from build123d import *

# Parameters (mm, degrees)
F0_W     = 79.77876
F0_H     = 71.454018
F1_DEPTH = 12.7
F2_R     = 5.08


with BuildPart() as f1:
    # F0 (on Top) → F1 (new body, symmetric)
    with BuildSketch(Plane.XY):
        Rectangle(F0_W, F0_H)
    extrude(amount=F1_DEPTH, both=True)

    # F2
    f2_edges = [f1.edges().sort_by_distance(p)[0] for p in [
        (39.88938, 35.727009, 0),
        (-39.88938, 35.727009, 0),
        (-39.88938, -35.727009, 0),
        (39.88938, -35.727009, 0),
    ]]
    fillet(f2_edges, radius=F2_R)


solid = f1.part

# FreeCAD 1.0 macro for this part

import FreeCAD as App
import Part
import Sketcher
Q = App.Units.Quantity


def edges_at(feature, points):
    """Names of the edges that pass closest to the given points."""
    edges = feature.Shape.Edges
    near = lambda p: min(range(len(edges)), key=lambda i: edges[i].distToShape(Part.Vertex(*p))[0])
    return sorted({f"Edge{near(p) + 1}" for p in points})


def add_polygon(sketch, points):
    """Adds a closed chain of lines whose ends are joined by coincident constraints."""
    first, n = sketch.GeometryCount, len(points)
    for a, b in zip(points, points[1:] + points[:1]):
        sketch.addGeometry(Part.LineSegment(App.Vector(*a, 0), App.Vector(*b, 0)), False)
    for i in range(n):
        sketch.addConstraint(Sketcher.Constraint("Coincident", first + i, 2, first + (i + 1) % n, 1))

doc = App.newDocument("Part")
body = doc.addObject("PartDesign::Body", "Body")

# Sketch on XY plane
sketch1 = doc.addObject("Sketcher::SketchObject", "Sketch")
body.addObject(sketch1)
sketch1.AttachmentSupport = (doc.XY_Plane, [""])
sketch1.MapMode = "FlatFace"
add_polygon(sketch1, [(-39.88938, 35.727009), (-39.88938, -35.727009), (39.88938, -35.727009), (39.88938, 35.727009)])  # lines 0-3
sketch1.addConstraint(Sketcher.Constraint("Vertical", 0))
sketch1.addConstraint(Sketcher.Constraint("Horizontal", 1))
sketch1.addConstraint(Sketcher.Constraint("Vertical", 2))
sketch1.addConstraint(Sketcher.Constraint("Horizontal", 3))
sketch1.addConstraint(Sketcher.Constraint("Symmetric", 0, 2, 2, 2, -1, 1))
sketch1.addConstraint(Sketcher.Constraint("DistanceX", 1, 1, 1, 2, Q("79.77876 mm")))
sketch1.addConstraint(Sketcher.Constraint("DistanceY", 0, 2, 0, 1, Q("71.454018 mm")))
pad1 = doc.addObject("PartDesign::Pad", "Pad")
body.addObject(pad1)
pad1.Profile = sketch1
pad1.Length = Q("1 in")
pad1.Midplane = True
doc.recompute()

fillet = doc.addObject("PartDesign::Fillet", "Fillet")
body.addObject(fillet)
fillet.Base = (pad1, edges_at(pad1, [
    (39.889, 35.727, 0),
    (-39.889, 35.727, 0),
    (-39.889, -35.727, 0),
    (39.889, -35.727, 0),
]))
fillet.Radius = Q("0.2 in")

doc.recompute()
